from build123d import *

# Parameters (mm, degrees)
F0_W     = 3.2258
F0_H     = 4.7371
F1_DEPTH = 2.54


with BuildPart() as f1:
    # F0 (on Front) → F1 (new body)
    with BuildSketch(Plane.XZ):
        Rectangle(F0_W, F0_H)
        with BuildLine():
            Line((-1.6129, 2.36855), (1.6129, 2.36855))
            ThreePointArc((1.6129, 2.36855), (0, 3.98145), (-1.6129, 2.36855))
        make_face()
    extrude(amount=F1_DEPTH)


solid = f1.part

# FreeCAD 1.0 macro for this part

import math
import FreeCAD as App
import Part
import Sketcher

V = App.Vector
Q = App.Units.Quantity

doc = App.newDocument("Part")
body = doc.addObject("PartDesign::Body", "Body")

sketch1 = doc.addObject("Sketcher::SketchObject", "Sketch")
body.addObject(sketch1)
sketch1.AttachmentSupport = (doc.XZ_Plane, [""])
sketch1.MapMode = "FlatFace"
sketch1.addGeometry([
    Part.LineSegment(V(-1.6, 2.4, 0), V(-1.6, -2.4, 0)),
    Part.LineSegment(V(-1.6, -2.4, 0), V(1.6, -2.4, 0)),
    Part.LineSegment(V(1.6, -2.4, 0), V(1.6, 2.4, 0)),
    Part.ArcOfCircle(Part.Circle(V(0, 2.4, 0), V(0, 0, 1), 1.6), math.radians(0), math.radians(180)),
], False)
sketch1.addConstraint([
    Sketcher.Constraint("Coincident", 0, 2, 1, 1),
    Sketcher.Constraint("Coincident", 1, 2, 2, 1),
    Sketcher.Constraint("Tangent", 2, 2, 3, 1),
    Sketcher.Constraint("Tangent", 3, 2, 0, 1),
    Sketcher.Constraint("Vertical", 0),
    Sketcher.Constraint("Horizontal", 1),
    Sketcher.Constraint("Vertical", 2),
    Sketcher.Constraint("Symmetric", 0, 2, 2, 2, -1, 1),
    Sketcher.Constraint("Radius", 3, Q("0.0635 in")),
    Sketcher.Constraint("DistanceY", 0, 2, 0, 1, Q("0.1865 in")),
])
pad1 = doc.addObject("PartDesign::Pad", "Pad")
body.addObject(pad1)
pad1.Profile = sketch1
pad1.Length = Q("0.1 in")

doc.recompute()
